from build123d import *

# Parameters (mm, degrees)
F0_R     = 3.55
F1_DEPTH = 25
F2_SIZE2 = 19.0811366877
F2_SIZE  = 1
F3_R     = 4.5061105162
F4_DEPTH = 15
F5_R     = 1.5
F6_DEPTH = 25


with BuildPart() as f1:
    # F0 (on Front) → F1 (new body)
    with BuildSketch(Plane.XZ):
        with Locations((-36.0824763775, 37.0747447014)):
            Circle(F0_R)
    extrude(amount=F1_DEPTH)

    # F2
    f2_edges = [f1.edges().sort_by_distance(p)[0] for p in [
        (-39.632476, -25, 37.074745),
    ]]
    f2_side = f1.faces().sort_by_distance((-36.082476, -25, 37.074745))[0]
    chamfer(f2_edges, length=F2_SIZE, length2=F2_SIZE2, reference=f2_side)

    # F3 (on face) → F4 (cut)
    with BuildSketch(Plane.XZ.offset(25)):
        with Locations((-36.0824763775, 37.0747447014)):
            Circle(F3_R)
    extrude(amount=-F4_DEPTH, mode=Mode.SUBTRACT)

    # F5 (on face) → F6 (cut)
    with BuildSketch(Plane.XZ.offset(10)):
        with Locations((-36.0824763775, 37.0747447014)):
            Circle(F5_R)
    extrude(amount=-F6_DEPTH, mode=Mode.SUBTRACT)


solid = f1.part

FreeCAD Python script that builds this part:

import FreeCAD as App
import Part
import Sketcher


def edges_at(feature, points):
    """Names of the edges that pass closest to the given points."""
    edges = feature.Shape.Edges
    near = lambda p: min(range(len(edges)), key=lambda i: edges[i].distToShape(Part.Vertex(*p))[0])
    return sorted({f"Edge{near(p) + 1}" for p in points})

doc = App.newDocument("Part")
body = doc.addObject("PartDesign::Body", "Body")

# Sketch on XZ plane
sketch1 = doc.addObject("Sketcher::SketchObject", "Sketch")
body.addObject(sketch1)
sketch1.AttachmentSupport = (doc.XZ_Plane, [""])
sketch1.MapMode = "FlatFace"
sketch1.addGeometry(Part.Circle(App.Vector(-36.082476, 37.074745, 0), App.Vector(0, 0, 1), 3.55), False)
sketch1.addConstraint([
    Sketcher.Constraint("Diameter", 0, 7.1),
    Sketcher.Constraint("DistanceX", 0, 3, -1, 1, 36.082476),
    Sketcher.Constraint("DistanceY", -1, 1, 0, 3, 37.074745),
])
pad1 = doc.addObject("PartDesign::Pad", "Pad")
body.addObject(pad1)
pad1.Profile = sketch1
pad1.Length = 25
doc.recompute()

chamfer = doc.addObject("PartDesign::Chamfer", "Chamfer")
body.addObject(chamfer)
chamfer.Base = (pad1, edges_at(pad1, [(-39.632, -25, 37.075)]))
chamfer.ChamferType = "Two distances"
chamfer.Size = 1
chamfer.Size2 = 19.081137
chamfer.FlipDirection = True

# Sketch on XZ plane
sketch2 = doc.addObject("Sketcher::SketchObject", "Sketch001")
body.addObject(sketch2)
sketch2.AttachmentSupport = (doc.XZ_Plane, [""])
sketch2.MapMode = "FlatFace"
sketch2.AttachmentOffset = App.Placement(App.Vector(0, 0, 25), App.Rotation())
sketch2.addGeometry(Part.Circle(App.Vector(-36.082476, 37.074745, 0), App.Vector(0, 0, 1), 4.506111), False)
sketch2.addConstraint([
    Sketcher.Constraint("Diameter", 0, 9.012221),
    Sketcher.Constraint("DistanceX", 0, 3, -1, 1, 36.082476),
    Sketcher.Constraint("DistanceY", -1, 1, 0, 3, 37.074745),
])
pocket1 = doc.addObject("PartDesign::Pocket", "Pocket")
body.addObject(pocket1)
pocket1.Profile = sketch2
pocket1.Length = 15

# Sketch on XZ plane
sketch3 = doc.addObject("Sketcher::SketchObject", "Sketch002")
body.addObject(sketch3)
sketch3.AttachmentSupport = (doc.XZ_Plane, [""])
sketch3.MapMode = "FlatFace"
sketch3.AttachmentOffset = App.Placement(App.Vector(0, 0, 10), App.Rotation())
sketch3.addGeometry(Part.Circle(App.Vector(-36.082476, 37.074745, 0), App.Vector(0, 0, 1), 1.5), False)
sketch3.addConstraint([
    Sketcher.Constraint("Diameter", 0, 3.0),
    Sketcher.Constraint("DistanceX", 0, 3, -1, 1, 36.082476),
    Sketcher.Constraint("DistanceY", -1, 1, 0, 3, 37.074745),
])
pocket2 = doc.addObject("PartDesign::Pocket", "Pocket001")
body.addObject(pocket2)
pocket2.Profile = sketch3
pocket2.Length = 25

doc.recompute()
